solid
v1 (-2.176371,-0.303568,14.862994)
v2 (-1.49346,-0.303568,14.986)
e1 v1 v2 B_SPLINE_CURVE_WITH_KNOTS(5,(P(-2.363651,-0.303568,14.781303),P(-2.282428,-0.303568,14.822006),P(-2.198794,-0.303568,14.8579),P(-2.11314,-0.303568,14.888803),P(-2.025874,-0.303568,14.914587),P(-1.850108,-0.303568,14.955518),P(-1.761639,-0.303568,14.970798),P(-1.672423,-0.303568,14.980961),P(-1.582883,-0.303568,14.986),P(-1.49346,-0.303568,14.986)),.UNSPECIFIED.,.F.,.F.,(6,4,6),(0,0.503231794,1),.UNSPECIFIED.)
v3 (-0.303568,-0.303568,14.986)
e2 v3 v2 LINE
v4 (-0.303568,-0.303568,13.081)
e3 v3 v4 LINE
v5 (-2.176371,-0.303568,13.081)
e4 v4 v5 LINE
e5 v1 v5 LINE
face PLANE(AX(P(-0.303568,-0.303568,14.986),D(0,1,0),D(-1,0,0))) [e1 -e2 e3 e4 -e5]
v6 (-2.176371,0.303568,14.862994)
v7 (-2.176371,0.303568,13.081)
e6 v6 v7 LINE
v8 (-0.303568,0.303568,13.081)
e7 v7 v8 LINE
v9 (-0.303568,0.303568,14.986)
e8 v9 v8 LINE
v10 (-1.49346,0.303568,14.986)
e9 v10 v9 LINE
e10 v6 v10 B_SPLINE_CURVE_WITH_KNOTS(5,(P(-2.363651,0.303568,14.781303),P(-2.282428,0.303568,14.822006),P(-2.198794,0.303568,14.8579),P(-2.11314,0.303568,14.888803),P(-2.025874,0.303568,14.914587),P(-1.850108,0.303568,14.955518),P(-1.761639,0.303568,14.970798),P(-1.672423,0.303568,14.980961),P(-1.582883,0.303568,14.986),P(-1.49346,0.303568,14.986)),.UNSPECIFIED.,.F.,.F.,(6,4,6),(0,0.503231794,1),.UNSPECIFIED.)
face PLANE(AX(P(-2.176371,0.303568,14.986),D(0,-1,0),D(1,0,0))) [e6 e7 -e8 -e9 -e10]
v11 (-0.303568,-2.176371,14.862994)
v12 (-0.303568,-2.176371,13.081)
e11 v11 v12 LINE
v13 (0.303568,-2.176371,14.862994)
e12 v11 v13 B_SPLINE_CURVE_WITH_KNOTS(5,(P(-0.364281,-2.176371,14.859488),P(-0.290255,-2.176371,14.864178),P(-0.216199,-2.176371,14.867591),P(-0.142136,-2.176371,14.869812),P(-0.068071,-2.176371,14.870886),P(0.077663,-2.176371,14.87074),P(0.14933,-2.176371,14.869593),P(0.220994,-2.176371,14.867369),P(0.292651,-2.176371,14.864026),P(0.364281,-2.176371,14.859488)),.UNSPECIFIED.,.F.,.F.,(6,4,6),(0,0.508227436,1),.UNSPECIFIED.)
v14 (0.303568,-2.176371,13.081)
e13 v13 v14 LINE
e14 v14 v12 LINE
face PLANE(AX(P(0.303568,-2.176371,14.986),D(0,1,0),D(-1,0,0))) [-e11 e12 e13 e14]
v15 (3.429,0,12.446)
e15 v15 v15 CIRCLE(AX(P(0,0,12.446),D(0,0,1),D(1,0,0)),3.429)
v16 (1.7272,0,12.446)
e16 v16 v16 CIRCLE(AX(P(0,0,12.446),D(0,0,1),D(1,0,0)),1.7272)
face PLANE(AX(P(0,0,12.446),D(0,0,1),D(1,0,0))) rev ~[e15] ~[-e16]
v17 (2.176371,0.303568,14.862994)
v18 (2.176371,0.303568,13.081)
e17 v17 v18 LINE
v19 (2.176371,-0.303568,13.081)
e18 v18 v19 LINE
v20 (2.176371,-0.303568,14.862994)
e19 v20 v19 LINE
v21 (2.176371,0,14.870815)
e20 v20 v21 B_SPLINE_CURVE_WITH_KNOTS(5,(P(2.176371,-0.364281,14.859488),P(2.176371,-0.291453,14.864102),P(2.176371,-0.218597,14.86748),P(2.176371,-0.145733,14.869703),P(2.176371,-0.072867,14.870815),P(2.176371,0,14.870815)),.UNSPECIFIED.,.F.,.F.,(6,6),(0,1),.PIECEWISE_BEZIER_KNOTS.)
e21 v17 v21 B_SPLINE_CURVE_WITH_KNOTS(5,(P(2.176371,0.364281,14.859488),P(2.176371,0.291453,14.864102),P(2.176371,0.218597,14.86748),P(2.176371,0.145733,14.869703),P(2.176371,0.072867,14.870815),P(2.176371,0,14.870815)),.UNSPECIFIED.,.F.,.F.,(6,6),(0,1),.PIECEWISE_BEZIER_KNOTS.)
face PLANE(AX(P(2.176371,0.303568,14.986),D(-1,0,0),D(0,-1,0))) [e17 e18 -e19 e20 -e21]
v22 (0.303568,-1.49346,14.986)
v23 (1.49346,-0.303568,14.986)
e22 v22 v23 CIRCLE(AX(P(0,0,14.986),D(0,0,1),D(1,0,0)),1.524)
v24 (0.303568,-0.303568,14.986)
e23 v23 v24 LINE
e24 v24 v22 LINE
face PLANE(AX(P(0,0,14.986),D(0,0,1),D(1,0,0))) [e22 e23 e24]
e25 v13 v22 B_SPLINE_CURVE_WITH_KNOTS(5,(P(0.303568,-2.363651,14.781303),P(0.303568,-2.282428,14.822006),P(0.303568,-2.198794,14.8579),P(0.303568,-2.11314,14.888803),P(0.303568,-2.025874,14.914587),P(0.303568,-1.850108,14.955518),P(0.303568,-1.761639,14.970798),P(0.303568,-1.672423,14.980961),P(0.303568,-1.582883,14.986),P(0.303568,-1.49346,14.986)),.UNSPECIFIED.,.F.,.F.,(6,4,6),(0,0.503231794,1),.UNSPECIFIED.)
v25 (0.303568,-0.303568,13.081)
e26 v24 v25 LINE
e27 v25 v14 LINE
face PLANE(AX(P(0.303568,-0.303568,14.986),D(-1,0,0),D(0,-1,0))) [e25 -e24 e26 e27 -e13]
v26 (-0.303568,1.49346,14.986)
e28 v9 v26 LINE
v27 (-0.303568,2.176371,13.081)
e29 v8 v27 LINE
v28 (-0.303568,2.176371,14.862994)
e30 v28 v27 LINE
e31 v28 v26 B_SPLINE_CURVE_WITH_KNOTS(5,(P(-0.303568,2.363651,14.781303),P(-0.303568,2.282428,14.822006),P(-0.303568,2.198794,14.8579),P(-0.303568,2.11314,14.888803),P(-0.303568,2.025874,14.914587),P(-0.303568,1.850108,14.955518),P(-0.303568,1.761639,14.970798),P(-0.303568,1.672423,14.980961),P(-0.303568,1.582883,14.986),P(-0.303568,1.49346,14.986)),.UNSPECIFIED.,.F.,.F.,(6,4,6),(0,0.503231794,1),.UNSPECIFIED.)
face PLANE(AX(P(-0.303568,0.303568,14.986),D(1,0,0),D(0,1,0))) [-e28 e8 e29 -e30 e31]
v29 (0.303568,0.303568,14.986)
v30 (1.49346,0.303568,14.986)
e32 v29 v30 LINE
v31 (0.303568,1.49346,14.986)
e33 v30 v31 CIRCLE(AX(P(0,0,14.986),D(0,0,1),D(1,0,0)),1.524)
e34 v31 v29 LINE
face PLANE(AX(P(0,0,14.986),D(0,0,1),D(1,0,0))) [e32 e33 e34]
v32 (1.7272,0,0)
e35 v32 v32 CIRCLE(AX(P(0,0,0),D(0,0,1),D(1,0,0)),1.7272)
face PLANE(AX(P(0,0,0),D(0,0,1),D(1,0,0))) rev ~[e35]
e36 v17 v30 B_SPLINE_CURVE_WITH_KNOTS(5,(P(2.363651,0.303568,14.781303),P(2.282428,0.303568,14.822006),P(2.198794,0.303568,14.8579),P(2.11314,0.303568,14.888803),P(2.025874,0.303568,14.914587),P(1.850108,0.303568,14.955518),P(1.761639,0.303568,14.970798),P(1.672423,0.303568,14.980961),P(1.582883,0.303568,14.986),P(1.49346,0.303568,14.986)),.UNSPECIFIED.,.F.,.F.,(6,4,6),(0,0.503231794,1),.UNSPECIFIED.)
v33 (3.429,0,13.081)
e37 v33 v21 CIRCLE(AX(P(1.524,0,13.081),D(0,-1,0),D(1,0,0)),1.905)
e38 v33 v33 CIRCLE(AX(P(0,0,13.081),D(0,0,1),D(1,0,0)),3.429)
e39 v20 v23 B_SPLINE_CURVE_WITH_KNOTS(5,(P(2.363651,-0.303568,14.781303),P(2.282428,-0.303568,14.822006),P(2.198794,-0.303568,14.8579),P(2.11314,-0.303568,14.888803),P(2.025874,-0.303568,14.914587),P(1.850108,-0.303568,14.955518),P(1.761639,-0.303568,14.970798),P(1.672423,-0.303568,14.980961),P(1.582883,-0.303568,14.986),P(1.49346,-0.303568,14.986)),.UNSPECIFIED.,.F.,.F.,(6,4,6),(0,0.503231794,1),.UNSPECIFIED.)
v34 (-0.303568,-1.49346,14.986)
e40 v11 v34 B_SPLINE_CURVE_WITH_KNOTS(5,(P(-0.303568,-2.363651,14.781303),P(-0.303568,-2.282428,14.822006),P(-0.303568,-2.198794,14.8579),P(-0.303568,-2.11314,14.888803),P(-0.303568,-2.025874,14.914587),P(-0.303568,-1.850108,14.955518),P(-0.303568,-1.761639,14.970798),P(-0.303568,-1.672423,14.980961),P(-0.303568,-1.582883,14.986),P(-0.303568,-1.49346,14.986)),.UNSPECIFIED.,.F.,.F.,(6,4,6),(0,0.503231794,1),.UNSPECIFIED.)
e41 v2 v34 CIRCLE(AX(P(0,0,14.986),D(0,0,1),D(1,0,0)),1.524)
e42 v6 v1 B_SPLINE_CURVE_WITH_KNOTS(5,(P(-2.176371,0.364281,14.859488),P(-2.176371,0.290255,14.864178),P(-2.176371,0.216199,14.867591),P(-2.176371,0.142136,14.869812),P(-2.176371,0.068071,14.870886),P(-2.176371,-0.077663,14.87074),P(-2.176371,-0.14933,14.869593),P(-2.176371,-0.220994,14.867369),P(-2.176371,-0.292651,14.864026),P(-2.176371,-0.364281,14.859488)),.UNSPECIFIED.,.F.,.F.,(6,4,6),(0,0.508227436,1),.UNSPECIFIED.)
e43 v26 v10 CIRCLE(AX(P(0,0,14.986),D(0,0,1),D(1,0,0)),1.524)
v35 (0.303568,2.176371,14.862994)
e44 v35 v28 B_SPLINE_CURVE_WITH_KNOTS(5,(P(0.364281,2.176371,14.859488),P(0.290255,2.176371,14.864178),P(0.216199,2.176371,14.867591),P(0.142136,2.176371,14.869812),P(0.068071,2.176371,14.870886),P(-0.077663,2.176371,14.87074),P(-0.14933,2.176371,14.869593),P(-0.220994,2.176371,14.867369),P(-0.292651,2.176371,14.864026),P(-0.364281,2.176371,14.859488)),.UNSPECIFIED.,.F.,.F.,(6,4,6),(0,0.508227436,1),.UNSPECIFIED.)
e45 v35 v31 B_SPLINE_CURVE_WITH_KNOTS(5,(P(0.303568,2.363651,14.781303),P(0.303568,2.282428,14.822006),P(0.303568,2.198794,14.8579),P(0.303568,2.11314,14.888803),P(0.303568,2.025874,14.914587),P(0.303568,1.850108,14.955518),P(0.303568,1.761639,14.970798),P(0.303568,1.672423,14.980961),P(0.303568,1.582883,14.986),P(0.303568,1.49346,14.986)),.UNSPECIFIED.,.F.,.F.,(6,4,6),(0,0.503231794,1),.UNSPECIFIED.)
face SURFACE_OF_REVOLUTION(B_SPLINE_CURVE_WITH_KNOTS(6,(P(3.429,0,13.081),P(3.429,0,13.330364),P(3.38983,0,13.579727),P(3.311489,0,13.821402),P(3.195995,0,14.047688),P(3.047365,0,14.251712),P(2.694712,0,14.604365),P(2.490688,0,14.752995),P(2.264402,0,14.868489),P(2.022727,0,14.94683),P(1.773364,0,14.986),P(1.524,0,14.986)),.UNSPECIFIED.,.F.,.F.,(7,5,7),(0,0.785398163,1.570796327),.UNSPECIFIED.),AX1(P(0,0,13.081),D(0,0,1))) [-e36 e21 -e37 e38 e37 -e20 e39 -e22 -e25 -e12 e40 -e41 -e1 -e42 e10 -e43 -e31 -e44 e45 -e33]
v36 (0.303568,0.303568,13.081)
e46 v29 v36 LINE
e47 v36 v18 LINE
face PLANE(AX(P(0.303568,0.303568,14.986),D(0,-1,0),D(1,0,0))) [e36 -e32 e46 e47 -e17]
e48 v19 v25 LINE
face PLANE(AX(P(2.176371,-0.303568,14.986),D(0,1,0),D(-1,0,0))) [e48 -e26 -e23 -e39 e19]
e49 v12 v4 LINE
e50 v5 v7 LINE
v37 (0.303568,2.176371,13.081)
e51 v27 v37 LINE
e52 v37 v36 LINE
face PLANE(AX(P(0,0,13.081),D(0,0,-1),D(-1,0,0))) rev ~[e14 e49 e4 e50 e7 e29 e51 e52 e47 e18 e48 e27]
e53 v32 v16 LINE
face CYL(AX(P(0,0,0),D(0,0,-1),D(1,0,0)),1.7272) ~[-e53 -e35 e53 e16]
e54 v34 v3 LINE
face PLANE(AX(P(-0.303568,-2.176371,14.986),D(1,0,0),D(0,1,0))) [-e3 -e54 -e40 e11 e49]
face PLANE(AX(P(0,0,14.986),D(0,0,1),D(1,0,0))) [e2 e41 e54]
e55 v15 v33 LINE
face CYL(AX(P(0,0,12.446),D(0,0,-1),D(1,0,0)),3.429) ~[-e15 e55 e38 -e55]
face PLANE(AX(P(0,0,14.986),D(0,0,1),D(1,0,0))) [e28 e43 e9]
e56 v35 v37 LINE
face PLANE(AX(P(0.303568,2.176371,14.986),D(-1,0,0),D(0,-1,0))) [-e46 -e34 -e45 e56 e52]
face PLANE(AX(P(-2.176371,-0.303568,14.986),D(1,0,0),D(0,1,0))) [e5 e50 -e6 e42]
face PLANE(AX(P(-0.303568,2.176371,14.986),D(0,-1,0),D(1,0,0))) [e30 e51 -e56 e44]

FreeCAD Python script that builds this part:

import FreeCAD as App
import Part
import Sketcher
from FreeCAD import Vector
Q = App.Units.Quantity


def edges_at(feature, points):
    """Names of the edges that pass closest to the given points."""
    edges = feature.Shape.Edges
    near = lambda p: min(range(len(edges)), key=lambda i: edges[i].distToShape(Part.Vertex(*p))[0])
    return sorted({f"Edge{near(p) + 1}" for p in points})


def add_polygon(sketch, points):
    """Adds a closed chain of lines whose ends are joined by coincident constraints."""
    first, n = sketch.GeometryCount, len(points)
    for a, b in zip(points, points[1:] + points[:1]):
        sketch.addGeometry(Part.LineSegment(App.Vector(*a, 0), App.Vector(*b, 0)), False)
    for i in range(n):
        sketch.addConstraint(Sketcher.Constraint("Coincident", first + i, 2, first + (i + 1) % n, 1))

doc = App.newDocument("Part")
body = doc.addObject("PartDesign::Body", "Body")

sketch1 = body.newObject("Sketcher::SketchObject", "Sketch")
sketch1.AttachmentSupport = (doc.getObject("XY_Plane"), [""])
sketch1.MapMode = "FlatFace"
sketch1.addGeometry(Part.Circle(Vector(0, 0, 0), Vector(0, 0, 1), 1.7), False)
sketch1.addConstraint([
    Sketcher.Constraint("Coincident", 0, 3, -1, 1),
    Sketcher.Constraint("Diameter", 0, Q("0.136 in")),
])
pad1 = body.newObject("PartDesign::Pad", "Pad")
pad1.Profile = sketch1
pad1.Length = Q("0.49 in")

sketch2 = body.newObject("Sketcher::SketchObject", "Sketch001")
sketch2.AttachmentSupport = (doc.getObject("XY_Plane"), [""])
sketch2.MapMode = "FlatFace"
sketch2.AttachmentOffset = App.Placement(Vector(0, 0, 0.49 * 25.4), App.Rotation())
sketch2.addGeometry(Part.Circle(Vector(0, 0, 0), Vector(0, 0, 1), 3.4), False)
sketch2.addConstraint([
    Sketcher.Constraint("Coincident", 0, 3, -1, 1),
    Sketcher.Constraint("Diameter", 0, Q("0.27 in")),
])
pad2 = body.newObject("PartDesign::Pad", "Pad001")
pad2.Profile = sketch2
pad2.Length = Q("0.1 in")
doc.recompute()

fillet = body.newObject("PartDesign::Fillet", "Fillet")
fillet.Base = (pad2, edges_at(pad2, [(-3.429, 0, 14.986)]))
fillet.Radius = Q("0.075 in")

sketch3 = body.newObject("Sketcher::SketchObject", "Sketch002")
sketch3.AttachmentSupport = (doc.getObject("XY_Plane"), [""])
sketch3.MapMode = "FlatFace"
sketch3.AttachmentOffset = App.Placement(Vector(0, 0, 0.59 * 25.4), App.Rotation())
add_polygon(sketch3, [(-0.3, 2.2), (-0.3, 0.3), (-2.2, 0.3), (-2.2, -0.3), (-0.3, -0.3), (-0.3, -2.2), (0.3, -2.2), (0.3, -0.3), (2.2, -0.3), (2.2, 0.3), (0.3, 0.3), (0.3, 2.2)])
sketch3.addConstraint([
    Sketcher.Constraint("Vertical", 0),
    Sketcher.Constraint("Horizontal", 1),
    Sketcher.Constraint("Vertical", 2),
    Sketcher.Constraint("Horizontal", 3),
    Sketcher.Constraint("Vertical", 4),
    Sketcher.Constraint("Horizontal", 5),
    Sketcher.Constraint("Vertical", 6),
    Sketcher.Constraint("Horizontal", 7),
    Sketcher.Constraint("Vertical", 8),
    Sketcher.Constraint("Horizontal", 9),
    Sketcher.Constraint("Vertical", 10),
    Sketcher.Constraint("Horizontal", 11),
    Sketcher.Constraint("Symmetric", 0, 2, 6, 2, -1, 1),
    Sketcher.Constraint("Symmetric", 2, 2, 8, 2, -1, 1),
    Sketcher.Constraint("Symmetric", 4, 2, 10, 2, -1, 1),
    Sketcher.Constraint("Symmetric", 3, 2, 6, 2, -2),
    Sketcher.Constraint("Equal", 9, 0),
    Sketcher.Constraint("Equal", 11, 2),
    Sketcher.Constraint("DistanceX", 1, 2, 1, 1, Q("1.872803 mm")),
    Sketcher.Constraint("DistanceX", 5, 1, 5, 2, Q("0.607136 mm")),
])
pocket1 = body.newObject("PartDesign::Pocket", "Pocket")
pocket1.Profile = sketch3
pocket1.Length = Q("0.075 in")

doc.recompute()
